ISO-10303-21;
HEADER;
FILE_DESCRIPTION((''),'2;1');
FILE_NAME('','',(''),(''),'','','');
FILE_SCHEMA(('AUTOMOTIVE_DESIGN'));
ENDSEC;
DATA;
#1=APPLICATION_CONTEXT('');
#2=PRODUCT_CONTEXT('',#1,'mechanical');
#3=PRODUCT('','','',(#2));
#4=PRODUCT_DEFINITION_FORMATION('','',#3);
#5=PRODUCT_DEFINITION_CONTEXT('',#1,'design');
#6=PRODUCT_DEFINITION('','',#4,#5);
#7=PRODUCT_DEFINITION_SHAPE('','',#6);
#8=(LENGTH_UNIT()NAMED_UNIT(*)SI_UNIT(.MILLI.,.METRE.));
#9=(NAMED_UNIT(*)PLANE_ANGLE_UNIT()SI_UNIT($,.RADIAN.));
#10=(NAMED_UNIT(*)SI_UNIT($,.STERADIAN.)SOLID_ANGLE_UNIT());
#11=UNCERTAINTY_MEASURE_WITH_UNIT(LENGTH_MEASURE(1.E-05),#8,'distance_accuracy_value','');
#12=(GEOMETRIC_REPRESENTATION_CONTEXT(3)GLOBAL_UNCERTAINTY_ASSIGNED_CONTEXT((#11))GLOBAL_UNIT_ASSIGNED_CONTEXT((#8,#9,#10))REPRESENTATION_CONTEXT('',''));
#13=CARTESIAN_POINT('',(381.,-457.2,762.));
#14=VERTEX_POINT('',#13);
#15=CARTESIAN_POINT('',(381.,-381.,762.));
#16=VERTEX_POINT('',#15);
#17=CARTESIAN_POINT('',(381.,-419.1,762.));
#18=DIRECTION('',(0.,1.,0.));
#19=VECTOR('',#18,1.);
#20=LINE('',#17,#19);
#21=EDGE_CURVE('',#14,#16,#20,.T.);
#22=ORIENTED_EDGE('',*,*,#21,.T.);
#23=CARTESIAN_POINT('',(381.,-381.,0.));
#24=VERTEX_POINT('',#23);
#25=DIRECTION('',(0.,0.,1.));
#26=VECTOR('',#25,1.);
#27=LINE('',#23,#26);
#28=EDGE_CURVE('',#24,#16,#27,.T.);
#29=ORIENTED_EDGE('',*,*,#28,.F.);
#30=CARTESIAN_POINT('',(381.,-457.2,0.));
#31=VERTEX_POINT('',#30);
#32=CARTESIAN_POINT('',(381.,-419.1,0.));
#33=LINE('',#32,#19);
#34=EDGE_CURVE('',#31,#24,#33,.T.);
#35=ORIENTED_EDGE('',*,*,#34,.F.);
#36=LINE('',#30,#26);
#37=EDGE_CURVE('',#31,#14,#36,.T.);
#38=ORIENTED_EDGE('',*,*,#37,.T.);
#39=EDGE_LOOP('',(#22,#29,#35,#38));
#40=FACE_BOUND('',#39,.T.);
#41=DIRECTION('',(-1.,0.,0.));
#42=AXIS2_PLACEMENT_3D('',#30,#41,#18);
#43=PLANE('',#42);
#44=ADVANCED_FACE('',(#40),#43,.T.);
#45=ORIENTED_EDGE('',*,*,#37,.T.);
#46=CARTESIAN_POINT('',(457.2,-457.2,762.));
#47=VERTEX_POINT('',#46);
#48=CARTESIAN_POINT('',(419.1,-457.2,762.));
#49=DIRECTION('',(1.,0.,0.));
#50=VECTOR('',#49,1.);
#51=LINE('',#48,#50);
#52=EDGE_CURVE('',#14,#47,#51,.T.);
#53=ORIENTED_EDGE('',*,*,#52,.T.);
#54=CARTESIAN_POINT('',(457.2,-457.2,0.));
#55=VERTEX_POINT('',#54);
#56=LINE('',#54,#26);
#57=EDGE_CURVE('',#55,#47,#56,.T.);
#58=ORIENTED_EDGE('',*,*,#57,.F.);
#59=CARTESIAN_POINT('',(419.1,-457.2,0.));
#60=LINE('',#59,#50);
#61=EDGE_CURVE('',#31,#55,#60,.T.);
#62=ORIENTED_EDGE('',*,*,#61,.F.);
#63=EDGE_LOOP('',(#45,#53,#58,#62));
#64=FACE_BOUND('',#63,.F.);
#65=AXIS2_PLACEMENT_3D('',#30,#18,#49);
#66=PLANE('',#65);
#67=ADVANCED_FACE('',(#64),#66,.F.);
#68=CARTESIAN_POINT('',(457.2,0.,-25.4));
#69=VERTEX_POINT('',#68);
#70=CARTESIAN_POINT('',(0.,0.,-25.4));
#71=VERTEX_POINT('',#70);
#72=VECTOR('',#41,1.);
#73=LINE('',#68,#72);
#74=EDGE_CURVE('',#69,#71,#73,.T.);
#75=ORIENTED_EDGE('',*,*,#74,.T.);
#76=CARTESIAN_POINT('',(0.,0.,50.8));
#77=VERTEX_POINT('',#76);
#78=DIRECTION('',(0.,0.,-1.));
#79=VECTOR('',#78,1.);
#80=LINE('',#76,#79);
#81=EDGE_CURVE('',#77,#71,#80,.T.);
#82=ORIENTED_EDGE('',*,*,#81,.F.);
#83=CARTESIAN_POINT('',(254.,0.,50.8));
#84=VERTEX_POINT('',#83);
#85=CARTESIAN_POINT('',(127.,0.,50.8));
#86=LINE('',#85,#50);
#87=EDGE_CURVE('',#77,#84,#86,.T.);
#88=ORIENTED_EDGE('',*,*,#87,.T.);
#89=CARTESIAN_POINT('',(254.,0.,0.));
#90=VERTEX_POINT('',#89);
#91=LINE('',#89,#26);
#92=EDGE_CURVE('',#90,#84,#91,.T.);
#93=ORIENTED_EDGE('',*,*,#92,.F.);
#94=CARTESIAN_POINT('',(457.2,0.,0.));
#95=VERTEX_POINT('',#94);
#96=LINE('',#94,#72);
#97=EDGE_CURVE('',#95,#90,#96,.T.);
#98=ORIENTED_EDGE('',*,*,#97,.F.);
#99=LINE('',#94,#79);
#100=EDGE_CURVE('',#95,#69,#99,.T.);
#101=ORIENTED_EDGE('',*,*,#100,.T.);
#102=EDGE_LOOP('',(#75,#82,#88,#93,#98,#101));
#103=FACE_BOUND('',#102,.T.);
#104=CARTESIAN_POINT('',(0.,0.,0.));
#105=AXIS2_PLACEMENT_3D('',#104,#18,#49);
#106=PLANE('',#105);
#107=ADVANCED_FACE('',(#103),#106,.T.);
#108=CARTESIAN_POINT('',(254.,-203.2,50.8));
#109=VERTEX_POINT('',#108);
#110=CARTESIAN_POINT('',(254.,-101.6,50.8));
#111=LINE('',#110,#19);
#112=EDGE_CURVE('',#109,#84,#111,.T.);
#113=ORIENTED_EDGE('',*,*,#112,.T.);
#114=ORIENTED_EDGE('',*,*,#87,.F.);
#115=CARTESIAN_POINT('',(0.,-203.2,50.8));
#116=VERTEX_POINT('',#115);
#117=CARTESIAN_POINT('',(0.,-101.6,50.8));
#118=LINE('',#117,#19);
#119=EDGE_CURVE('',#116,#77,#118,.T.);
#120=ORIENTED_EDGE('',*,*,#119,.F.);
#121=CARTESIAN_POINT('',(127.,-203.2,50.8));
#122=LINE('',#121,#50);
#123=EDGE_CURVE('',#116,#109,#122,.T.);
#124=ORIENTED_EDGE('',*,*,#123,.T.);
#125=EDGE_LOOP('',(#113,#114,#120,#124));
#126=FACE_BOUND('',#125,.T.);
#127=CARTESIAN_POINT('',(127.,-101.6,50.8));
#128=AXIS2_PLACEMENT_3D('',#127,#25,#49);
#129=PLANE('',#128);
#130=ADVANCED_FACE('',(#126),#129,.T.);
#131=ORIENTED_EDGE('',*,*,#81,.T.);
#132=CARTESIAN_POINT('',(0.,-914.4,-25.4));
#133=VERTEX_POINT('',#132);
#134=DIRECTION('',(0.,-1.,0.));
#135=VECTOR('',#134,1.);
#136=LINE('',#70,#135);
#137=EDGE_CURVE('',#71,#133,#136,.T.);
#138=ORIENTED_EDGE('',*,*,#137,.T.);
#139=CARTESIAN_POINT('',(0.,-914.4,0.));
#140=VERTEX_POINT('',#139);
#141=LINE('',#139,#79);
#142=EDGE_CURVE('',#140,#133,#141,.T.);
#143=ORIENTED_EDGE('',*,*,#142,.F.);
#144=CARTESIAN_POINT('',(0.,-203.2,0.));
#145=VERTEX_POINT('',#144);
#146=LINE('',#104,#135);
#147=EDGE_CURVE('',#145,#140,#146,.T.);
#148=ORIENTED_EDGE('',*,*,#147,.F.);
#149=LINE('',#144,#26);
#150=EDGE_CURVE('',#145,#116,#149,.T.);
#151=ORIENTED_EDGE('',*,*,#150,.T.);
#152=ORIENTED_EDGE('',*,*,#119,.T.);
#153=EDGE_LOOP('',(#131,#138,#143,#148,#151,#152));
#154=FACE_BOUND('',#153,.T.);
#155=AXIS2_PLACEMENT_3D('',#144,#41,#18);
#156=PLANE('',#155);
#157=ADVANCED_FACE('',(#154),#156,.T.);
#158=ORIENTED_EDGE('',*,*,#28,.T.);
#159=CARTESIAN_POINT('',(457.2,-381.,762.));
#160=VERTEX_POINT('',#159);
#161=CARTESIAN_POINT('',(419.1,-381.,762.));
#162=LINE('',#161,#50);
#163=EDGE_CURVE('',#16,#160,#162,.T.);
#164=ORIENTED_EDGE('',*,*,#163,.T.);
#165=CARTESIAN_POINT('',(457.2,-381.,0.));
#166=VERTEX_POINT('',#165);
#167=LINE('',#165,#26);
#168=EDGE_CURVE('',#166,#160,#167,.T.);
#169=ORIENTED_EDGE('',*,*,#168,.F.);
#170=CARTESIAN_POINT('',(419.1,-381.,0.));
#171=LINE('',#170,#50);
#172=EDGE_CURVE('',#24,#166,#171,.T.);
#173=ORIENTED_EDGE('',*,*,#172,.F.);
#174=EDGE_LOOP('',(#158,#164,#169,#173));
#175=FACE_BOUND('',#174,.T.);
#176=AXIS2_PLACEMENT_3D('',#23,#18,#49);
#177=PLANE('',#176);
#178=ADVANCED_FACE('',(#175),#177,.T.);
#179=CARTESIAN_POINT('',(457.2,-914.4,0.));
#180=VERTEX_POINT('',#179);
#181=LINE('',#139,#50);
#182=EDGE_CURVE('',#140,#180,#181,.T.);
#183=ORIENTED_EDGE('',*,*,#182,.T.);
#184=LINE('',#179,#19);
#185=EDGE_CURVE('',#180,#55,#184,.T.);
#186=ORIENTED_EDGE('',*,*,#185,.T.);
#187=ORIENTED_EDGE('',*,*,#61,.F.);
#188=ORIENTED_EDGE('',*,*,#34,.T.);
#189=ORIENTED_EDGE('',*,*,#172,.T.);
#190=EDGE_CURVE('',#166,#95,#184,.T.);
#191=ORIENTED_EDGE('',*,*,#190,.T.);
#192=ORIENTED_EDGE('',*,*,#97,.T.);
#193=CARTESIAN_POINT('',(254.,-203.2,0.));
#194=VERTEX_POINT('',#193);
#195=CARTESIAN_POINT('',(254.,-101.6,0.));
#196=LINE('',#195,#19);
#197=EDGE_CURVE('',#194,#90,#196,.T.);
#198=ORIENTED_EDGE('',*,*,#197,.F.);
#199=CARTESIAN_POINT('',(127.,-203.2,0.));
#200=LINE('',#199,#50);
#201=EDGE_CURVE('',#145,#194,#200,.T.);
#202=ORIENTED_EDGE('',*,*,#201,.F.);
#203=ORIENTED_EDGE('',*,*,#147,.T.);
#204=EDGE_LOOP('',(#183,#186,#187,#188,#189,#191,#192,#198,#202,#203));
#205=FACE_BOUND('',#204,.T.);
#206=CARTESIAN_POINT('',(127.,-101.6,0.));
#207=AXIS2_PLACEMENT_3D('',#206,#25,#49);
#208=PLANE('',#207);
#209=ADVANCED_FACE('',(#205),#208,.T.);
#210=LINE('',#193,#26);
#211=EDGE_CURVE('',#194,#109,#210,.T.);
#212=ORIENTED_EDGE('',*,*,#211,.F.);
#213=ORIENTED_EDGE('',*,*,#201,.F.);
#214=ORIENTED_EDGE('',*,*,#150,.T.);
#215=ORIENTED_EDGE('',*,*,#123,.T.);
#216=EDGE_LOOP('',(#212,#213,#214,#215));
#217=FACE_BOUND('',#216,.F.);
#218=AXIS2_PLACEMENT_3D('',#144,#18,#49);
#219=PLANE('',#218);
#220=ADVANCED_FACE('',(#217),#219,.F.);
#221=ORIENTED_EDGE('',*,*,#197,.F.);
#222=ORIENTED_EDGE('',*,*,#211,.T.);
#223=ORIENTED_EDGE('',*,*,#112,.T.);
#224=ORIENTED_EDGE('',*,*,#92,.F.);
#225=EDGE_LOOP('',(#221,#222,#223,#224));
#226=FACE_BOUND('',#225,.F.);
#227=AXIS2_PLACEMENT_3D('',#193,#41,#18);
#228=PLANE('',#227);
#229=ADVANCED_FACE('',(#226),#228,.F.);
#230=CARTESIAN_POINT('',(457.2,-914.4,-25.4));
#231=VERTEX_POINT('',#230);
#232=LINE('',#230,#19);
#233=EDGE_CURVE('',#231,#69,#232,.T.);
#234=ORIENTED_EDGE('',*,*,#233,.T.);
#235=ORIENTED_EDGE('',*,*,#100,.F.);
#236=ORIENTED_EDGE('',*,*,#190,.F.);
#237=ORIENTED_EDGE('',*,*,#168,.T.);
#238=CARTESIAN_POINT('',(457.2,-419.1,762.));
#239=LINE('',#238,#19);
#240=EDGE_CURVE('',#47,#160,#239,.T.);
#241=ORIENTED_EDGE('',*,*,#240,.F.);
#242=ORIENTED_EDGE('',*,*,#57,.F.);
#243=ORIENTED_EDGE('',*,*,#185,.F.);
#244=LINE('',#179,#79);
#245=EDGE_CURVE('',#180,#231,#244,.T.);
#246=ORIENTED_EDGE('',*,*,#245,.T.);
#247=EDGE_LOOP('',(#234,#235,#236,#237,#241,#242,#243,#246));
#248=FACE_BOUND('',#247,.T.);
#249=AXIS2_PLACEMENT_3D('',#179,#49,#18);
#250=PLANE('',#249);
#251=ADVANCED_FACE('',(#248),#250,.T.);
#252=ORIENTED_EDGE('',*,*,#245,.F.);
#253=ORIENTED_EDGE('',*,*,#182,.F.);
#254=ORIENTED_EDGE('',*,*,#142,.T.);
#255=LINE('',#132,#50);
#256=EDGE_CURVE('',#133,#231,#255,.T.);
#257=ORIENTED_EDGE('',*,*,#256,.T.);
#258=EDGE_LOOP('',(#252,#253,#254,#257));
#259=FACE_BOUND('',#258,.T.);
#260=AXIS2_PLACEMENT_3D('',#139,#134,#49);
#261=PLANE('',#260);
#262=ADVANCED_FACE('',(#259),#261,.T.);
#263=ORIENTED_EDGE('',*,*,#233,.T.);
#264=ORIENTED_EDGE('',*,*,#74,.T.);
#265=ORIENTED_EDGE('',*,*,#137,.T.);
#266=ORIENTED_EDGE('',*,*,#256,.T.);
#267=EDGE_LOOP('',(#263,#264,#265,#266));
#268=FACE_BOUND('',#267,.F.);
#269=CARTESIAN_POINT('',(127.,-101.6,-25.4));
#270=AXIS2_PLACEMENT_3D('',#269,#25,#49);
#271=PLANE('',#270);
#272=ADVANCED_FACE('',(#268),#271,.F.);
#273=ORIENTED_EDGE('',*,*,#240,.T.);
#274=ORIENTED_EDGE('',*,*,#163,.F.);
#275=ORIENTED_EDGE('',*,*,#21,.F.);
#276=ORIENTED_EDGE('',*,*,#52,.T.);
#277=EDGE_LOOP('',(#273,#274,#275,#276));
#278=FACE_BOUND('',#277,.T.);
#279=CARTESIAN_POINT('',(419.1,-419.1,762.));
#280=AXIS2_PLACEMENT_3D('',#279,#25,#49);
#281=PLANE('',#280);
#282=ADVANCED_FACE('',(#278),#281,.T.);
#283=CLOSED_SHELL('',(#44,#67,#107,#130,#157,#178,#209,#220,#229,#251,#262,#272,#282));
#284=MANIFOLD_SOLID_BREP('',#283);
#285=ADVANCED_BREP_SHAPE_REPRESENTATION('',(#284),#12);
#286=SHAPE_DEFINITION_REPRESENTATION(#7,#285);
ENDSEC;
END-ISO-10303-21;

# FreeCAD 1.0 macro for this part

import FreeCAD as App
import Part
import Sketcher
from FreeCAD import Vector
Q = App.Units.Quantity


def add_polygon(sketch, points):
    """Adds a closed chain of lines whose ends are joined by coincident constraints."""
    first, n = sketch.GeometryCount, len(points)
    for a, b in zip(points, points[1:] + points[:1]):
        sketch.addGeometry(Part.LineSegment(App.Vector(*a, 0), App.Vector(*b, 0)), False)
    for i in range(n):
        sketch.addConstraint(Sketcher.Constraint("Coincident", first + i, 2, first + (i + 1) % n, 1))

doc = App.newDocument("Part")
params = doc.addObject("Spreadsheet::Sheet", "Params")
for row, (alias, value) in enumerate([
    ("sketch1_width", "18 in"),
    ("sketch1_height", "36 in"),
    ("pad1_length", "1 in"),
    ("sketch2_width", "10 in"),
    ("sketch2_height", "8 in"),
    ("pad2_length", "2 in"),
    ("sketch3_width", "3 in"),
    ("pad3_length", "30 in"),
], start=1):
    params.set(f"A{row}", alias)
    params.set(f"B{row}", "=" + value)
    params.setAlias(f"B{row}", alias)

body = doc.addObject("PartDesign::Body", "Body")

sketch1 = body.newObject("Sketcher::SketchObject", "Sketch")
sketch1.AttachmentSupport = (doc.getObject("XY_Plane"), [""])
sketch1.MapMode = "FlatFace"
add_polygon(sketch1, [(0, 0), (0, -914.4), (457.2, -914.4), (457.2, 0)])
sketch1.addConstraint(Sketcher.Constraint("Vertical", 0))
sketch1.addConstraint(Sketcher.Constraint("Horizontal", 1))
sketch1.addConstraint(Sketcher.Constraint("Vertical", 2))
sketch1.addConstraint(Sketcher.Constraint("Horizontal", 3))
sketch1.addConstraint(Sketcher.Constraint("Coincident", 3, 2, -1, 1))
sketch1.addConstraint(Sketcher.Constraint("DistanceX", 1, 1, 1, 2, Q("18 in")))
sketch1.addConstraint(Sketcher.Constraint("DistanceY", 0, 2, 0, 1, Q("36 in")))
sketch1.setExpression("Constraints[9]", "Params.sketch1_width")
sketch1.setExpression("Constraints[10]", "Params.sketch1_height")
pad1 = body.newObject("PartDesign::Pad", "Pad")
pad1.Profile = sketch1
pad1.setExpression("Length", "Params.pad1_length")
pad1.Reversed = True

sketch2 = body.newObject("Sketcher::SketchObject", "Sketch001")
sketch2.AttachmentSupport = (doc.getObject("XY_Plane"), [""])
sketch2.MapMode = "FlatFace"
add_polygon(sketch2, [(0, 0), (0, -203.2), (254, -203.2), (254, 0)])
sketch2.addConstraint(Sketcher.Constraint("Vertical", 0))
sketch2.addConstraint(Sketcher.Constraint("Horizontal", 1))
sketch2.addConstraint(Sketcher.Constraint("Vertical", 2))
sketch2.addConstraint(Sketcher.Constraint("Horizontal", 3))
sketch2.addConstraint(Sketcher.Constraint("Coincident", 3, 2, -1, 1))
sketch2.addConstraint(Sketcher.Constraint("DistanceX", 1, 1, 1, 2, Q("10 in")))
sketch2.addConstraint(Sketcher.Constraint("DistanceY", 0, 2, 0, 1, Q("8 in")))
sketch2.setExpression("Constraints[9]", "Params.sketch2_width")
sketch2.setExpression("Constraints[10]", "Params.sketch2_height")
pad2 = body.newObject("PartDesign::Pad", "Pad001")
pad2.Profile = sketch2
pad2.setExpression("Length", "Params.pad2_length")

sketch3 = body.newObject("Sketcher::SketchObject", "Sketch002")
sketch3.AttachmentSupport = (doc.getObject("XY_Plane"), [""])
sketch3.MapMode = "FlatFace"
add_polygon(sketch3, [(381, -381), (381, -457.2), (457.2, -457.2), (457.2, -381)])
sketch3.addConstraint(Sketcher.Constraint("Vertical", 0))
sketch3.addConstraint(Sketcher.Constraint("Horizontal", 1))
sketch3.addConstraint(Sketcher.Constraint("Vertical", 2))
sketch3.addConstraint(Sketcher.Constraint("Horizontal", 3))
sketch3.addConstraint(Sketcher.Constraint("Equal", 3, 0))
sketch3.addConstraint(Sketcher.Constraint("DistanceX", 1, 1, 1, 2, Q("3 in")))
sketch3.addConstraint(Sketcher.Constraint("DistanceX", -1, 1, 0, 2, Q("15 in")))
sketch3.addConstraint(Sketcher.Constraint("DistanceY", 0, 2, -1, 1, Q("18 in")))
sketch3.setExpression("Constraints[9]", "Params.sketch3_width")
pad3 = body.newObject("PartDesign::Pad", "Pad002")
pad3.Profile = sketch3
pad3.setExpression("Length", "Params.pad3_length")

doc.recompute()
